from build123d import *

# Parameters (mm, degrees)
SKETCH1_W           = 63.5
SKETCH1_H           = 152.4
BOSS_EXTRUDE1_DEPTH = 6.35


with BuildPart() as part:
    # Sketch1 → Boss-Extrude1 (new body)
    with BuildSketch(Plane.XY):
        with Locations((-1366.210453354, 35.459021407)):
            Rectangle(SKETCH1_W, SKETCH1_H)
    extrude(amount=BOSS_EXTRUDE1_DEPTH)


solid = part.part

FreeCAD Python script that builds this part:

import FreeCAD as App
import Part
import Sketcher

V = App.Vector
Q = App.Units.Quantity


def add_polygon(sketch, points):
    """Adds a closed chain of lines whose ends are joined by coincident constraints."""
    first, n = sketch.GeometryCount, len(points)
    for a, b in zip(points, points[1:] + points[:1]):
        sketch.addGeometry(Part.LineSegment(App.Vector(*a, 0), App.Vector(*b, 0)), False)
    for i in range(n):
        sketch.addConstraint(Sketcher.Constraint("Coincident", first + i, 2, first + (i + 1) % n, 1))

doc = App.newDocument("Part")
body = doc.addObject("PartDesign::Body", "Body")

# Sketch on XY plane
sketch1 = body.newObject("Sketcher::SketchObject", "Sketch")
sketch1.AttachmentSupport = (doc.getObject("XY_Plane"), [""])
sketch1.MapMode = "FlatFace"
add_polygon(sketch1, [(-1398, 112), (-1398, -41), (-1334, -41), (-1334, 112)])  # lines 0-3
sketch1.addConstraint(Sketcher.Constraint("Vertical", 0))
sketch1.addConstraint(Sketcher.Constraint("Horizontal", 1))
sketch1.addConstraint(Sketcher.Constraint("Vertical", 2))
sketch1.addConstraint(Sketcher.Constraint("Horizontal", 3))
sketch1.addConstraint(Sketcher.Constraint("DistanceY", 0, 2, 0, 1, Q("6 in")))
sketch1.addConstraint(Sketcher.Constraint("DistanceX", 1, 1, 1, 2, Q("2.5 in")))
sketch1.addConstraint(Sketcher.Constraint("DistanceY", 0, 2, -1, 1, 40.740979))
sketch1.addConstraint(Sketcher.Constraint("DistanceX", 0, 2, -1, 1, 1397.960453))
pad1 = body.newObject("PartDesign::Pad", "Pad")
pad1.Profile = sketch1
pad1.Length = Q("0.25 in")

doc.recompute()
